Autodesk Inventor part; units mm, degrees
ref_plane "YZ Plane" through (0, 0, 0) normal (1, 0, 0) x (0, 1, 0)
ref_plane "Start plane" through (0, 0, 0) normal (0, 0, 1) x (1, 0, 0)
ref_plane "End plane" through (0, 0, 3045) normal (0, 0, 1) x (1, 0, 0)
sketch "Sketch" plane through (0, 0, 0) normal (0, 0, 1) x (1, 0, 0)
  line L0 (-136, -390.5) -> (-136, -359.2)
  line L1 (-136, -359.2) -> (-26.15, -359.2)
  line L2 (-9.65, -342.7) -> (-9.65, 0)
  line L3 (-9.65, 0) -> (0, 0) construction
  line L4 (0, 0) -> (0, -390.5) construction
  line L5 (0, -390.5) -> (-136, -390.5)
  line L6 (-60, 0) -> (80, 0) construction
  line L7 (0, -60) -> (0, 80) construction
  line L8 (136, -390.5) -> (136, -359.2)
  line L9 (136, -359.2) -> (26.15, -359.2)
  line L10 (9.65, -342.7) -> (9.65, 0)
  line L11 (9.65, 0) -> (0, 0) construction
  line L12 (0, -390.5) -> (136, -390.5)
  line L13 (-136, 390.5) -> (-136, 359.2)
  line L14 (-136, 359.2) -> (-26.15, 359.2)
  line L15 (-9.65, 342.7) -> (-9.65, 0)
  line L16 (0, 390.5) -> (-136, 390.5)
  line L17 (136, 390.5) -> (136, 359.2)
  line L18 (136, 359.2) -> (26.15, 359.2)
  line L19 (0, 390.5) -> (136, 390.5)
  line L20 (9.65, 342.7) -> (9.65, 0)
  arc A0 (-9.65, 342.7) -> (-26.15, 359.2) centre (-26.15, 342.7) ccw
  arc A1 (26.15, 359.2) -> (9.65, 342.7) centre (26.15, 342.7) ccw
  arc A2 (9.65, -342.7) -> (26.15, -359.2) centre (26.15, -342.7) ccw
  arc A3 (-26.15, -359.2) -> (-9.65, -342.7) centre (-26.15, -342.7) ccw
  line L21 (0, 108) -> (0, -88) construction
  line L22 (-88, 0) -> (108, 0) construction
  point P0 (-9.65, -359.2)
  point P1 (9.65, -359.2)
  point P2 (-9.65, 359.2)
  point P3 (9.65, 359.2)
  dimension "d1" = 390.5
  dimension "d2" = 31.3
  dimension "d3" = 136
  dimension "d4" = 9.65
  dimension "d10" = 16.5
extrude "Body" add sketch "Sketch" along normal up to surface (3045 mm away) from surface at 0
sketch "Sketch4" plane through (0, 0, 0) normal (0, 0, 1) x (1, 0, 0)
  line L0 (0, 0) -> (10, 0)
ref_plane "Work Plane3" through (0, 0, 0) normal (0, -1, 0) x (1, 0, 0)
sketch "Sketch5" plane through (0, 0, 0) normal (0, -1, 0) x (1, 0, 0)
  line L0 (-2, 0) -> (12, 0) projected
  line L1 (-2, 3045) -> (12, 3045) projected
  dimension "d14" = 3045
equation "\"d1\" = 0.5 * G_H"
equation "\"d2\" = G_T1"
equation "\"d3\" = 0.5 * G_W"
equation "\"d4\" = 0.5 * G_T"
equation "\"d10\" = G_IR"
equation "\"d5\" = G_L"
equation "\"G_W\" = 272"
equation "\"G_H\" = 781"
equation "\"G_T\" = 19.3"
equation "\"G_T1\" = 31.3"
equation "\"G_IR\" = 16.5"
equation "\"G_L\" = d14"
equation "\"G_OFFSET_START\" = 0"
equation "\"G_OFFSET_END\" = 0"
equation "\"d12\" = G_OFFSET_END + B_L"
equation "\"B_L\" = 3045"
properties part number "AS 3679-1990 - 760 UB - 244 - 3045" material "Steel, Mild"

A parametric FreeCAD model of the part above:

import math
import FreeCAD as App
import Part
import Sketcher
from FreeCAD import Vector
Q = App.Units.Quantity

doc = App.newDocument("Part")
body = doc.addObject("PartDesign::Body", "Body")

# Sketch on XY plane
sketch1 = body.newObject("Sketcher::SketchObject", "Sketch")
sketch1.AttachmentSupport = (doc.getObject("XY_Plane"), [""])
sketch1.MapMode = "FlatFace"
sketch1.addGeometry([
    Part.LineSegment(Vector(-136, -359, 0), Vector(-136, -390, 0)),  # 0
    Part.LineSegment(Vector(-136, -390, 0), Vector(136, -390, 0)),  # 1
    Part.LineSegment(Vector(136, -390, 0), Vector(136, -359, 0)),  # 2
    Part.LineSegment(Vector(136, -359, 0), Vector(26, -359, 0)),  # 3
    Part.ArcOfCircle(Part.Circle(Vector(26, -343, 0), Vector(0, 0, 1), 16), math.radians(180), math.radians(270)),  # 4
    Part.LineSegment(Vector(10, -343, 0), Vector(10, 343, 0)),  # 5
    Part.ArcOfCircle(Part.Circle(Vector(26, 343, 0), Vector(0, 0, 1), 16), math.radians(90), math.radians(180)),  # 6
    Part.LineSegment(Vector(26, 359, 0), Vector(136, 359, 0)),  # 7
    Part.LineSegment(Vector(136, 359, 0), Vector(136, 390, 0)),  # 8
    Part.LineSegment(Vector(136, 390, 0), Vector(-136, 390, 0)),  # 9
    Part.LineSegment(Vector(-136, 390, 0), Vector(-136, 359, 0)),  # 10
    Part.LineSegment(Vector(-136, 359, 0), Vector(-26, 359, 0)),  # 11
    Part.ArcOfCircle(Part.Circle(Vector(-26, 343, 0), Vector(0, 0, 1), 16), math.radians(0), math.radians(90)),  # 12
    Part.LineSegment(Vector(-10, 343, 0), Vector(-10, -343, 0)),  # 13
    Part.ArcOfCircle(Part.Circle(Vector(-26, -343, 0), Vector(0, 0, 1), 16), math.radians(-90), math.radians(0)),  # 14
    Part.LineSegment(Vector(-26, -359, 0), Vector(-136, -359, 0)),  # 15
], False)
sketch1.addConstraint([
    Sketcher.Constraint("Coincident", 0, 2, 1, 1),
    Sketcher.Constraint("Coincident", 1, 2, 2, 1),
    Sketcher.Constraint("Coincident", 2, 2, 3, 1),
    Sketcher.Constraint("Tangent", 3, 2, 4, 2),
    Sketcher.Constraint("Tangent", 4, 1, 5, 1),
    Sketcher.Constraint("Tangent", 5, 2, 6, 2),
    Sketcher.Constraint("Tangent", 6, 1, 7, 1),
    Sketcher.Constraint("Coincident", 7, 2, 8, 1),
    Sketcher.Constraint("Coincident", 8, 2, 9, 1),
    Sketcher.Constraint("Coincident", 9, 2, 10, 1),
    Sketcher.Constraint("Coincident", 10, 2, 11, 1),
    Sketcher.Constraint("Tangent", 11, 2, 12, 2),
    Sketcher.Constraint("Tangent", 12, 1, 13, 1),
    Sketcher.Constraint("Tangent", 13, 2, 14, 2),
    Sketcher.Constraint("Tangent", 14, 1, 15, 1),
    Sketcher.Constraint("Coincident", 15, 2, 0, 1),
    Sketcher.Constraint("Vertical", 0),
    Sketcher.Constraint("Horizontal", 1),
    Sketcher.Constraint("Vertical", 2),
    Sketcher.Constraint("Horizontal", 3),
    Sketcher.Constraint("Vertical", 5),
    Sketcher.Constraint("Horizontal", 7),
    Sketcher.Constraint("Vertical", 8),
    Sketcher.Constraint("Horizontal", 9),
    Sketcher.Constraint("Vertical", 10),
    Sketcher.Constraint("Horizontal", 11),
    Sketcher.Constraint("Vertical", 13),
    Sketcher.Constraint("Horizontal", 15),
    Sketcher.Constraint("Equal", 4, 6),
    Sketcher.Constraint("Equal", 6, 12),
    Sketcher.Constraint("Equal", 12, 14),
    Sketcher.Constraint("Symmetric", 4, 3, 12, 3, -1, 1),
    Sketcher.Constraint("Symmetric", 0, 2, 8, 2, -1, 1),
    Sketcher.Constraint("Symmetric", 7, 2, 10, 2, -2),
    Sketcher.Constraint("Symmetric", 2, 2, 15, 2, -2),
    Sketcher.Constraint("Radius", 4, Q("16.5 mm")),
    Sketcher.Constraint("DistanceY", 0, 2, 0, 1, Q("31.3 mm")),
    Sketcher.Constraint("DistanceX", 0, 2, -1, 1, Q("136 mm")),
    Sketcher.Constraint("DistanceY", 0, 2, -1, 1, Q("390.5 mm")),
    Sketcher.Constraint("DistanceX", -1, 1, 4, 1, Q("9.65 mm")),
])
pad1 = body.newObject("PartDesign::Pad", "Pad")
pad1.Profile = sketch1
pad1.Length = 3045

doc.recompute()
